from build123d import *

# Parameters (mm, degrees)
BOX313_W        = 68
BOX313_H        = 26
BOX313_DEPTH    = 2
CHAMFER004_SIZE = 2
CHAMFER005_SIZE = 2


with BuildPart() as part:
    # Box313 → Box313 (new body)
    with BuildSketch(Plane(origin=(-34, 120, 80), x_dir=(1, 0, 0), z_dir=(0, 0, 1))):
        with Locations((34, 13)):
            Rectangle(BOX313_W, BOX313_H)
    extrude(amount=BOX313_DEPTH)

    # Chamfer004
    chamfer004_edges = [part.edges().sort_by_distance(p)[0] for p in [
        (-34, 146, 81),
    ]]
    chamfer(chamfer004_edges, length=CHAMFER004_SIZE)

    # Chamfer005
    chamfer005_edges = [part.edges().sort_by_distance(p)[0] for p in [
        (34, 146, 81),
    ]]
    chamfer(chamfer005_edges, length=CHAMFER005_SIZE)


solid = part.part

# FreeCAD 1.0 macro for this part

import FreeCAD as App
import Part
import Sketcher
Q = App.Units.Quantity


def edges_at(feature, points):
    """Names of the edges that pass closest to the given points."""
    edges = feature.Shape.Edges
    near = lambda p: min(range(len(edges)), key=lambda i: edges[i].distToShape(Part.Vertex(*p))[0])
    return sorted({f"Edge{near(p) + 1}" for p in points})


def add_polygon(sketch, points):
    """Adds a closed chain of lines whose ends are joined by coincident constraints."""
    first, n = sketch.GeometryCount, len(points)
    for a, b in zip(points, points[1:] + points[:1]):
        sketch.addGeometry(Part.LineSegment(App.Vector(*a, 0), App.Vector(*b, 0)), False)
    for i in range(n):
        sketch.addConstraint(Sketcher.Constraint("Coincident", first + i, 2, first + (i + 1) % n, 1))

doc = App.newDocument("Part")
body = doc.addObject("PartDesign::Body", "Body")

# Sketch on XY plane
sketch1 = body.newObject("Sketcher::SketchObject", "Sketch")
sketch1.AttachmentSupport = (doc.getObject("XY_Plane"), [""])
sketch1.MapMode = "FlatFace"
sketch1.AttachmentOffset = App.Placement(App.Vector(0, 0, 80), App.Rotation())
add_polygon(sketch1, [(-34, 146), (-34, 120), (34, 120), (34, 146)])  # lines 0-3
sketch1.addConstraint(Sketcher.Constraint("Vertical", 0))
sketch1.addConstraint(Sketcher.Constraint("Horizontal", 1))
sketch1.addConstraint(Sketcher.Constraint("Vertical", 2))
sketch1.addConstraint(Sketcher.Constraint("Horizontal", 3))
sketch1.addConstraint(Sketcher.Constraint("DistanceX", 1, 1, 1, 2, Q("68 mm")))
sketch1.addConstraint(Sketcher.Constraint("DistanceY", 0, 2, 0, 1, Q("26 mm")))
sketch1.addConstraint(Sketcher.Constraint("DistanceX", 0, 2, -1, 1, Q("34 mm")))
sketch1.addConstraint(Sketcher.Constraint("DistanceY", -1, 1, 0, 2, Q("120 mm")))
pad1 = body.newObject("PartDesign::Pad", "Pad")
pad1.Profile = sketch1
pad1.Length = 2
doc.recompute()

chamfer = body.newObject("PartDesign::Chamfer", "Chamfer")
chamfer.Base = (pad1, edges_at(pad1, [(-34, 146, 81)]))
chamfer.Size = 2
doc.recompute()

chamfer2 = body.newObject("PartDesign::Chamfer", "Chamfer001")
chamfer2.Base = (chamfer, edges_at(chamfer, [(34, 146, 81)]))
chamfer2.Size = 2

doc.recompute()
